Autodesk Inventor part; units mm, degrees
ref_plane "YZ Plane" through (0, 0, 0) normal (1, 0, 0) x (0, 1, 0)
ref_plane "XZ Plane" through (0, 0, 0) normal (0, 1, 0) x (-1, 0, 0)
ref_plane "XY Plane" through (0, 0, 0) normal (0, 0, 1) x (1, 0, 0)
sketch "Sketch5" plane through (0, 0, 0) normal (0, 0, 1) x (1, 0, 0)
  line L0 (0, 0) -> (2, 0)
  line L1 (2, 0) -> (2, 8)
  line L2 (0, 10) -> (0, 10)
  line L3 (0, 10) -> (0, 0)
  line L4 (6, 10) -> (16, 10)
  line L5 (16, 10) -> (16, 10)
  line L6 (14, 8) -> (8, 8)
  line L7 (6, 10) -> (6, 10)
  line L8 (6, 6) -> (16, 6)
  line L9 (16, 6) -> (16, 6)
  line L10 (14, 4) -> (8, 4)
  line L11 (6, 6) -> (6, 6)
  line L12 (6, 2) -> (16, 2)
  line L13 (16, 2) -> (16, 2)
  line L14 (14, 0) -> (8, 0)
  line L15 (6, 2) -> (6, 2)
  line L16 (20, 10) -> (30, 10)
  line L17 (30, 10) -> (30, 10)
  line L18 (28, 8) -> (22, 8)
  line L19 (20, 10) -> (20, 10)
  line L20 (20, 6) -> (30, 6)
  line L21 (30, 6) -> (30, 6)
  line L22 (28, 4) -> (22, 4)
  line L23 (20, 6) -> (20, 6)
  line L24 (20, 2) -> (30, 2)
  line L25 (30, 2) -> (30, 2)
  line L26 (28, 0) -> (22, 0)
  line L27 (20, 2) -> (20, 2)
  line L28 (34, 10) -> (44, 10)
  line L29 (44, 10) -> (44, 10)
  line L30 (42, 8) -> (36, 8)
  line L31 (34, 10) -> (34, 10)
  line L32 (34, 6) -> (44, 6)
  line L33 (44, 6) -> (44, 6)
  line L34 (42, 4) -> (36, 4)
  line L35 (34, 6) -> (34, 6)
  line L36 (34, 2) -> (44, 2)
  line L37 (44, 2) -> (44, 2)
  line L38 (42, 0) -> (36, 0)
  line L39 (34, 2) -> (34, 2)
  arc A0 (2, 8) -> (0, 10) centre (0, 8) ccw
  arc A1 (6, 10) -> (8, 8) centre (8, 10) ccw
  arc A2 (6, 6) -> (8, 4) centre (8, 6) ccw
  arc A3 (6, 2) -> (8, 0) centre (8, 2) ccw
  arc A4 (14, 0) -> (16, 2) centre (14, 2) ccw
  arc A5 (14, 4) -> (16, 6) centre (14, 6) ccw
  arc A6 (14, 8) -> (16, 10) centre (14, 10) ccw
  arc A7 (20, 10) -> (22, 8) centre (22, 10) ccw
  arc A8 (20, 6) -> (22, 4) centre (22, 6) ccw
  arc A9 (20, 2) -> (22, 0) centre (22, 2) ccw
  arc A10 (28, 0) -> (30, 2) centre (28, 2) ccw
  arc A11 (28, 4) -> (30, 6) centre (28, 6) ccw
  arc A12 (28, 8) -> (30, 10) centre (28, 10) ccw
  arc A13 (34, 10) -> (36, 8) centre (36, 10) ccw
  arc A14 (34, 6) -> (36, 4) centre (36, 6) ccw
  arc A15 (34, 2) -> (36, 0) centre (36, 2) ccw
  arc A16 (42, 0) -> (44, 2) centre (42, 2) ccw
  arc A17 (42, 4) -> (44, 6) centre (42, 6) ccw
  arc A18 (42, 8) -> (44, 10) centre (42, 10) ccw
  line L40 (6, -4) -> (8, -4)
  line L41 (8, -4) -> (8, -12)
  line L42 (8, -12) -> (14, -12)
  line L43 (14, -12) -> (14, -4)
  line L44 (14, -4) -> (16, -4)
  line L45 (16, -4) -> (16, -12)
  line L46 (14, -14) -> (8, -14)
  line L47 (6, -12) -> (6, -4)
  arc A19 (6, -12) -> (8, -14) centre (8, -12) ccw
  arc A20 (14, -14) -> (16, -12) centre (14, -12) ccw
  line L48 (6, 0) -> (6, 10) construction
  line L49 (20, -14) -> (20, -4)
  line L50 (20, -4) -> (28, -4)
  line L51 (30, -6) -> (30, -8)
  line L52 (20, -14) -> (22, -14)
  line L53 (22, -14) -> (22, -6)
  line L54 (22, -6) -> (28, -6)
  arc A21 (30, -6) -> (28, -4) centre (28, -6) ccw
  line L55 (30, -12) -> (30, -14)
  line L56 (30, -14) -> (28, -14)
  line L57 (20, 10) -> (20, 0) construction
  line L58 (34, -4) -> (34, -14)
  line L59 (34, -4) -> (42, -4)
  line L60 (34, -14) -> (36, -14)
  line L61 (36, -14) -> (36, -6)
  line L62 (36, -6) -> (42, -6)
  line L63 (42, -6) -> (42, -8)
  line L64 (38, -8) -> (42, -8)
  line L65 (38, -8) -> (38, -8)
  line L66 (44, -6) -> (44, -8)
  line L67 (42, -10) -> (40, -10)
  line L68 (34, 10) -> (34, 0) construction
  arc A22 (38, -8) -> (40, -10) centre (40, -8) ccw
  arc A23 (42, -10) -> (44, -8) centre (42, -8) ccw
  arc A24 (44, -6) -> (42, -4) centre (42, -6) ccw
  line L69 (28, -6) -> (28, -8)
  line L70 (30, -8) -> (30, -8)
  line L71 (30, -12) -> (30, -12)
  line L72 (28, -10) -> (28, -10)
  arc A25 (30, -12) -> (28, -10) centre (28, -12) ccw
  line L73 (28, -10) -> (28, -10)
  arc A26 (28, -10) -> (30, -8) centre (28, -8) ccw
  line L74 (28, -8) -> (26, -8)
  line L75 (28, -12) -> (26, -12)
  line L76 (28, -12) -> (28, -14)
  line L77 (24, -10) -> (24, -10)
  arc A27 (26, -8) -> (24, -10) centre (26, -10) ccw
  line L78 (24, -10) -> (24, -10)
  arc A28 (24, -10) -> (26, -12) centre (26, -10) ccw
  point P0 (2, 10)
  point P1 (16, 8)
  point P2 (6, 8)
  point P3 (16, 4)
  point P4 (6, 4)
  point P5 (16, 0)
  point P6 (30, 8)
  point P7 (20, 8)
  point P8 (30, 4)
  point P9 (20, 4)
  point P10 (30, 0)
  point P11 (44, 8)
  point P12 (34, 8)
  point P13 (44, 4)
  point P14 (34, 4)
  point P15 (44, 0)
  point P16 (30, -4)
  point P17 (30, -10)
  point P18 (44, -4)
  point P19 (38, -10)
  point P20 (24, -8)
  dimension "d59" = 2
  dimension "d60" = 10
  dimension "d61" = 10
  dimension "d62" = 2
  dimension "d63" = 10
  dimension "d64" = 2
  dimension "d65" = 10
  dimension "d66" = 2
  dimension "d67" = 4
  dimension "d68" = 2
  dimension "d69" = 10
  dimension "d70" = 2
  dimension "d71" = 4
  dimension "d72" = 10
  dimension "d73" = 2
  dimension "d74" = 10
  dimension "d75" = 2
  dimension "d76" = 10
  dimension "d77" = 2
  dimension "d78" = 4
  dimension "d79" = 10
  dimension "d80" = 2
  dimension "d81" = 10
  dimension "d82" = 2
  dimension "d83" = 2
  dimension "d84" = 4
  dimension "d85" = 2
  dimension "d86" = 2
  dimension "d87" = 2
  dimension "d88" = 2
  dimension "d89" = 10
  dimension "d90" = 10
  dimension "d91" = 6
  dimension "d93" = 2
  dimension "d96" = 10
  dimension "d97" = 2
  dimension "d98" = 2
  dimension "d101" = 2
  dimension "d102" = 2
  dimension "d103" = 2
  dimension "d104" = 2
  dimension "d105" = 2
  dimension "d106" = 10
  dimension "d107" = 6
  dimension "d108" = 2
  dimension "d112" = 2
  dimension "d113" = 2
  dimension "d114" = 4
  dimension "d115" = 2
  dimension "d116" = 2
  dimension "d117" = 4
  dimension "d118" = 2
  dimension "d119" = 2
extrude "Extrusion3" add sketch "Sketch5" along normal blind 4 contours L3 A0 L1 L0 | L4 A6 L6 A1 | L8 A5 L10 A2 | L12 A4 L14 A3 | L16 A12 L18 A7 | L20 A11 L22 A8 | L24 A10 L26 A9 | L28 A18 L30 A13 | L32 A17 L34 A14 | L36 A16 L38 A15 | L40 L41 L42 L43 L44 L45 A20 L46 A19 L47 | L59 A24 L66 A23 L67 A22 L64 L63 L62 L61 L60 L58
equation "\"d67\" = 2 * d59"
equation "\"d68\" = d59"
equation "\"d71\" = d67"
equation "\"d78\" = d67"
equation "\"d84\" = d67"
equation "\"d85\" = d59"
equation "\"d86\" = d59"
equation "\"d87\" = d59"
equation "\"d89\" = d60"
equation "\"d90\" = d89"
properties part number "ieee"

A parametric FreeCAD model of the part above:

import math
import FreeCAD as App
import Part
import Sketcher
Q = App.Units.Quantity

doc = App.newDocument("Part")
params = doc.addObject("Spreadsheet::Sheet", "Params")
for row, (alias, value) in enumerate([
    ("sketch1_radius", "2 mm"),
    ("sketch1_width", "10 mm"),
    ("pad1_length", "4 mm"),
], start=1):
    params.set(f"A{row}", alias)
    params.set(f"B{row}", "=" + value)
    params.setAlias(f"B{row}", alias)

body = doc.addObject("PartDesign::Body", "Body")
body.AllowCompound = True

sketch1 = body.newObject("Sketcher::SketchObject", "Sketch")
sketch1.AttachmentSupport = (doc.getObject("XY_Plane"), [""])
sketch1.MapMode = "FlatFace"
sketch1.addGeometry(Part.LineSegment(App.Vector(0, 10, 0), App.Vector(0, 0, 0)), False)
sketch1.addGeometry(Part.LineSegment(App.Vector(0, 0, 0), App.Vector(2, 0, 0)), False)
sketch1.addGeometry(Part.LineSegment(App.Vector(2, 0, 0), App.Vector(2, 8, 0)), False)
sketch1.addGeometry(Part.ArcOfCircle(Part.Circle(App.Vector(0, 8, 0), App.Vector(0, 0, 1), 2), math.radians(0), math.radians(90)), False)
sketch1.addGeometry(Part.LineSegment(App.Vector(16, 10, 0), App.Vector(6, 10, 0)), False)
sketch1.addGeometry(Part.ArcOfCircle(Part.Circle(App.Vector(8, 10, 0), App.Vector(0, 0, 1), 2), math.radians(180), math.radians(270)), False)
sketch1.addGeometry(Part.LineSegment(App.Vector(8, 8, 0), App.Vector(14, 8, 0)), False)
sketch1.addGeometry(Part.ArcOfCircle(Part.Circle(App.Vector(14, 10, 0), App.Vector(0, 0, 1), 2), math.radians(-90), math.radians(0)), False)
sketch1.addGeometry(Part.LineSegment(App.Vector(16, 6, 0), App.Vector(6, 6, 0)), False)
sketch1.addGeometry(Part.ArcOfCircle(Part.Circle(App.Vector(8, 6, 0), App.Vector(0, 0, 1), 2), math.radians(180), math.radians(270)), False)
sketch1.addGeometry(Part.LineSegment(App.Vector(8, 4, 0), App.Vector(14, 4, 0)), False)
sketch1.addGeometry(Part.ArcOfCircle(Part.Circle(App.Vector(14, 6, 0), App.Vector(0, 0, 1), 2), math.radians(-90), math.radians(0)), False)
sketch1.addGeometry(Part.LineSegment(App.Vector(16, 2, 0), App.Vector(6, 2, 0)), False)
sketch1.addGeometry(Part.ArcOfCircle(Part.Circle(App.Vector(8, 2, 0), App.Vector(0, 0, 1), 2), math.radians(180), math.radians(270)), False)
sketch1.addGeometry(Part.LineSegment(App.Vector(8, 0, 0), App.Vector(14, 0, 0)), False)
sketch1.addGeometry(Part.ArcOfCircle(Part.Circle(App.Vector(14, 2, 0), App.Vector(0, 0, 1), 2), math.radians(-90), math.radians(0)), False)
sketch1.addGeometry(Part.LineSegment(App.Vector(30, 10, 0), App.Vector(20, 10, 0)), False)
sketch1.addGeometry(Part.ArcOfCircle(Part.Circle(App.Vector(22, 10, 0), App.Vector(0, 0, 1), 2), math.radians(180), math.radians(270)), False)
sketch1.addGeometry(Part.LineSegment(App.Vector(22, 8, 0), App.Vector(28, 8, 0)), False)
sketch1.addGeometry(Part.ArcOfCircle(Part.Circle(App.Vector(28, 10, 0), App.Vector(0, 0, 1), 2), math.radians(-90), math.radians(0)), False)
sketch1.addGeometry(Part.LineSegment(App.Vector(30, 6, 0), App.Vector(20, 6, 0)), False)
sketch1.addGeometry(Part.ArcOfCircle(Part.Circle(App.Vector(22, 6, 0), App.Vector(0, 0, 1), 2), math.radians(180), math.radians(270)), False)
sketch1.addGeometry(Part.LineSegment(App.Vector(22, 4, 0), App.Vector(28, 4, 0)), False)
sketch1.addGeometry(Part.ArcOfCircle(Part.Circle(App.Vector(28, 6, 0), App.Vector(0, 0, 1), 2), math.radians(-90), math.radians(0)), False)
sketch1.addGeometry(Part.LineSegment(App.Vector(30, 2, 0), App.Vector(20, 2, 0)), False)
sketch1.addGeometry(Part.ArcOfCircle(Part.Circle(App.Vector(22, 2, 0), App.Vector(0, 0, 1), 2), math.radians(180), math.radians(270)), False)
sketch1.addGeometry(Part.LineSegment(App.Vector(22, 0, 0), App.Vector(28, 0, 0)), False)
sketch1.addGeometry(Part.ArcOfCircle(Part.Circle(App.Vector(28, 2, 0), App.Vector(0, 0, 1), 2), math.radians(-90), math.radians(0)), False)
sketch1.addGeometry(Part.LineSegment(App.Vector(44, 10, 0), App.Vector(34, 10, 0)), False)
sketch1.addGeometry(Part.ArcOfCircle(Part.Circle(App.Vector(36, 10, 0), App.Vector(0, 0, 1), 2), math.radians(180), math.radians(270)), False)
sketch1.addGeometry(Part.LineSegment(App.Vector(36, 8, 0), App.Vector(42, 8, 0)), False)
sketch1.addGeometry(Part.ArcOfCircle(Part.Circle(App.Vector(42, 10, 0), App.Vector(0, 0, 1), 2), math.radians(-90), math.radians(0)), False)
sketch1.addGeometry(Part.LineSegment(App.Vector(44, 6, 0), App.Vector(34, 6, 0)), False)
sketch1.addGeometry(Part.ArcOfCircle(Part.Circle(App.Vector(36, 6, 0), App.Vector(0, 0, 1), 2), math.radians(180), math.radians(270)), False)
sketch1.addGeometry(Part.LineSegment(App.Vector(36, 4, 0), App.Vector(42, 4, 0)), False)
sketch1.addGeometry(Part.ArcOfCircle(Part.Circle(App.Vector(42, 6, 0), App.Vector(0, 0, 1), 2), math.radians(-90), math.radians(0)), False)
sketch1.addGeometry(Part.LineSegment(App.Vector(44, 2, 0), App.Vector(34, 2, 0)), False)
sketch1.addGeometry(Part.ArcOfCircle(Part.Circle(App.Vector(36, 2, 0), App.Vector(0, 0, 1), 2), math.radians(180), math.radians(270)), False)
sketch1.addGeometry(Part.LineSegment(App.Vector(36, 0, 0), App.Vector(42, 0, 0)), False)
sketch1.addGeometry(Part.ArcOfCircle(Part.Circle(App.Vector(42, 2, 0), App.Vector(0, 0, 1), 2), math.radians(-90), math.radians(0)), False)
sketch1.addGeometry(Part.LineSegment(App.Vector(8, -4, 0), App.Vector(6, -4, 0)), False)
sketch1.addGeometry(Part.LineSegment(App.Vector(6, -4, 0), App.Vector(6, -12, 0)), False)
sketch1.addGeometry(Part.ArcOfCircle(Part.Circle(App.Vector(8, -12, 0), App.Vector(0, 0, 1), 2), math.radians(180), math.radians(270)), False)
sketch1.addGeometry(Part.LineSegment(App.Vector(8, -14, 0), App.Vector(14, -14, 0)), False)
sketch1.addGeometry(Part.ArcOfCircle(Part.Circle(App.Vector(14, -12, 0), App.Vector(0, 0, 1), 2), math.radians(-90), math.radians(0)), False)
sketch1.addGeometry(Part.LineSegment(App.Vector(16, -12, 0), App.Vector(16, -4, 0)), False)
sketch1.addGeometry(Part.LineSegment(App.Vector(16, -4, 0), App.Vector(14, -4, 0)), False)
sketch1.addGeometry(Part.LineSegment(App.Vector(14, -4, 0), App.Vector(14, -12, 0)), False)
sketch1.addGeometry(Part.LineSegment(App.Vector(14, -12, 0), App.Vector(8, -12, 0)), False)
sketch1.addGeometry(Part.LineSegment(App.Vector(8, -12, 0), App.Vector(8, -4, 0)), False)
sketch1.addGeometry(Part.LineSegment(App.Vector(42, -4, 0), App.Vector(34, -4, 0)), False)
sketch1.addGeometry(Part.LineSegment(App.Vector(34, -4, 0), App.Vector(34, -14, 0)), False)
sketch1.addGeometry(Part.LineSegment(App.Vector(34, -14, 0), App.Vector(36, -14, 0)), False)
sketch1.addGeometry(Part.LineSegment(App.Vector(36, -14, 0), App.Vector(36, -6, 0)), False)
sketch1.addGeometry(Part.LineSegment(App.Vector(36, -6, 0), App.Vector(42, -6, 0)), False)
sketch1.addGeometry(Part.LineSegment(App.Vector(42, -6, 0), App.Vector(42, -8, 0)), False)
sketch1.addGeometry(Part.LineSegment(App.Vector(42, -8, 0), App.Vector(38, -8, 0)), False)
sketch1.addGeometry(Part.ArcOfCircle(Part.Circle(App.Vector(40, -8, 0), App.Vector(0, 0, 1), 2), math.radians(180), math.radians(270)), False)
sketch1.addGeometry(Part.LineSegment(App.Vector(40, -10, 0), App.Vector(42, -10, 0)), False)
sketch1.addGeometry(Part.ArcOfCircle(Part.Circle(App.Vector(42, -8, 0), App.Vector(0, 0, 1), 2), math.radians(-90), math.radians(0)), False)
sketch1.addGeometry(Part.LineSegment(App.Vector(44, -8, 0), App.Vector(44, -6, 0)), False)
sketch1.addGeometry(Part.ArcOfCircle(Part.Circle(App.Vector(42, -6, 0), App.Vector(0, 0, 1), 2), math.radians(0), math.radians(90)), False)
sketch1.addConstraint(Sketcher.Constraint("Coincident", 0, 2, 1, 1))
sketch1.addConstraint(Sketcher.Constraint("Coincident", 1, 2, 2, 1))
sketch1.addConstraint(Sketcher.Constraint("Tangent", 2, 2, 3, 1))
sketch1.addConstraint(Sketcher.Constraint("Coincident", 3, 2, 0, 1))
sketch1.addConstraint(Sketcher.Constraint("Coincident", 4, 2, 5, 1))
sketch1.addConstraint(Sketcher.Constraint("Tangent", 5, 2, 6, 1))
sketch1.addConstraint(Sketcher.Constraint("Tangent", 6, 2, 7, 1))
sketch1.addConstraint(Sketcher.Constraint("Coincident", 7, 2, 4, 1))
sketch1.addConstraint(Sketcher.Constraint("Coincident", 8, 2, 9, 1))
sketch1.addConstraint(Sketcher.Constraint("Tangent", 9, 2, 10, 1))
sketch1.addConstraint(Sketcher.Constraint("Tangent", 10, 2, 11, 1))
sketch1.addConstraint(Sketcher.Constraint("Coincident", 11, 2, 8, 1))
sketch1.addConstraint(Sketcher.Constraint("Coincident", 12, 2, 13, 1))
sketch1.addConstraint(Sketcher.Constraint("Tangent", 13, 2, 14, 1))
sketch1.addConstraint(Sketcher.Constraint("Tangent", 14, 2, 15, 1))
sketch1.addConstraint(Sketcher.Constraint("Coincident", 15, 2, 12, 1))
sketch1.addConstraint(Sketcher.Constraint("Coincident", 16, 2, 17, 1))
sketch1.addConstraint(Sketcher.Constraint("Tangent", 17, 2, 18, 1))
sketch1.addConstraint(Sketcher.Constraint("Tangent", 18, 2, 19, 1))
sketch1.addConstraint(Sketcher.Constraint("Coincident", 19, 2, 16, 1))
sketch1.addConstraint(Sketcher.Constraint("Coincident", 20, 2, 21, 1))
sketch1.addConstraint(Sketcher.Constraint("Tangent", 21, 2, 22, 1))
sketch1.addConstraint(Sketcher.Constraint("Tangent", 22, 2, 23, 1))
sketch1.addConstraint(Sketcher.Constraint("Coincident", 23, 2, 20, 1))
sketch1.addConstraint(Sketcher.Constraint("Coincident", 24, 2, 25, 1))
sketch1.addConstraint(Sketcher.Constraint("Tangent", 25, 2, 26, 1))
sketch1.addConstraint(Sketcher.Constraint("Tangent", 26, 2, 27, 1))
sketch1.addConstraint(Sketcher.Constraint("Coincident", 27, 2, 24, 1))
sketch1.addConstraint(Sketcher.Constraint("Coincident", 28, 2, 29, 1))
sketch1.addConstraint(Sketcher.Constraint("Tangent", 29, 2, 30, 1))
sketch1.addConstraint(Sketcher.Constraint("Tangent", 30, 2, 31, 1))
sketch1.addConstraint(Sketcher.Constraint("Coincident", 31, 2, 28, 1))
sketch1.addConstraint(Sketcher.Constraint("Coincident", 32, 2, 33, 1))
sketch1.addConstraint(Sketcher.Constraint("Tangent", 33, 2, 34, 1))
sketch1.addConstraint(Sketcher.Constraint("Tangent", 34, 2, 35, 1))
sketch1.addConstraint(Sketcher.Constraint("Coincident", 35, 2, 32, 1))
sketch1.addConstraint(Sketcher.Constraint("Coincident", 36, 2, 37, 1))
sketch1.addConstraint(Sketcher.Constraint("Tangent", 37, 2, 38, 1))
sketch1.addConstraint(Sketcher.Constraint("Tangent", 38, 2, 39, 1))
sketch1.addConstraint(Sketcher.Constraint("Coincident", 39, 2, 36, 1))
sketch1.addConstraint(Sketcher.Constraint("Coincident", 40, 2, 41, 1))
sketch1.addConstraint(Sketcher.Constraint("Tangent", 41, 2, 42, 1))
sketch1.addConstraint(Sketcher.Constraint("Tangent", 42, 2, 43, 1))
sketch1.addConstraint(Sketcher.Constraint("Tangent", 43, 2, 44, 1))
sketch1.addConstraint(Sketcher.Constraint("Tangent", 44, 2, 45, 1))
sketch1.addConstraint(Sketcher.Constraint("Coincident", 45, 2, 46, 1))
sketch1.addConstraint(Sketcher.Constraint("Coincident", 46, 2, 47, 1))
sketch1.addConstraint(Sketcher.Constraint("Coincident", 47, 2, 48, 1))
sketch1.addConstraint(Sketcher.Constraint("Coincident", 48, 2, 49, 1))
sketch1.addConstraint(Sketcher.Constraint("Coincident", 49, 2, 40, 1))
sketch1.addConstraint(Sketcher.Constraint("Coincident", 50, 2, 51, 1))
sketch1.addConstraint(Sketcher.Constraint("Coincident", 51, 2, 52, 1))
sketch1.addConstraint(Sketcher.Constraint("Coincident", 52, 2, 53, 1))
sketch1.addConstraint(Sketcher.Constraint("Coincident", 53, 2, 54, 1))
sketch1.addConstraint(Sketcher.Constraint("Coincident", 54, 2, 55, 1))
sketch1.addConstraint(Sketcher.Constraint("Coincident", 55, 2, 56, 1))
sketch1.addConstraint(Sketcher.Constraint("Coincident", 56, 2, 57, 1))
sketch1.addConstraint(Sketcher.Constraint("Tangent", 57, 2, 58, 1))
sketch1.addConstraint(Sketcher.Constraint("Tangent", 58, 2, 59, 1))
sketch1.addConstraint(Sketcher.Constraint("Tangent", 59, 2, 60, 1))
sketch1.addConstraint(Sketcher.Constraint("Tangent", 60, 2, 61, 1))
sketch1.addConstraint(Sketcher.Constraint("Tangent", 61, 2, 50, 1))
sketch1.addConstraint(Sketcher.Constraint("Vertical", 0))
sketch1.addConstraint(Sketcher.Constraint("Horizontal", 1))
sketch1.addConstraint(Sketcher.Constraint("Vertical", 2))
sketch1.addConstraint(Sketcher.Constraint("Horizontal", 4))
sketch1.addConstraint(Sketcher.Constraint("Horizontal", 6))
sketch1.addConstraint(Sketcher.Constraint("Horizontal", 8))
sketch1.addConstraint(Sketcher.Constraint("Horizontal", 10))
sketch1.addConstraint(Sketcher.Constraint("Horizontal", 12))
sketch1.addConstraint(Sketcher.Constraint("Horizontal", 14))
sketch1.addConstraint(Sketcher.Constraint("Horizontal", 16))
sketch1.addConstraint(Sketcher.Constraint("Horizontal", 18))
sketch1.addConstraint(Sketcher.Constraint("Horizontal", 20))
sketch1.addConstraint(Sketcher.Constraint("Horizontal", 22))
sketch1.addConstraint(Sketcher.Constraint("Horizontal", 24))
sketch1.addConstraint(Sketcher.Constraint("Horizontal", 26))
sketch1.addConstraint(Sketcher.Constraint("Horizontal", 28))
sketch1.addConstraint(Sketcher.Constraint("Horizontal", 30))
sketch1.addConstraint(Sketcher.Constraint("Horizontal", 32))
sketch1.addConstraint(Sketcher.Constraint("Horizontal", 34))
sketch1.addConstraint(Sketcher.Constraint("Horizontal", 36))
sketch1.addConstraint(Sketcher.Constraint("Horizontal", 38))
sketch1.addConstraint(Sketcher.Constraint("Horizontal", 40))
sketch1.addConstraint(Sketcher.Constraint("Vertical", 41))
sketch1.addConstraint(Sketcher.Constraint("Horizontal", 43))
sketch1.addConstraint(Sketcher.Constraint("Vertical", 45))
sketch1.addConstraint(Sketcher.Constraint("Horizontal", 46))
sketch1.addConstraint(Sketcher.Constraint("Vertical", 47))
sketch1.addConstraint(Sketcher.Constraint("Horizontal", 48))
sketch1.addConstraint(Sketcher.Constraint("Vertical", 49))
sketch1.addConstraint(Sketcher.Constraint("Horizontal", 50))
sketch1.addConstraint(Sketcher.Constraint("Vertical", 51))
sketch1.addConstraint(Sketcher.Constraint("Horizontal", 52))
sketch1.addConstraint(Sketcher.Constraint("Vertical", 53))
sketch1.addConstraint(Sketcher.Constraint("Horizontal", 54))
sketch1.addConstraint(Sketcher.Constraint("Vertical", 55))
sketch1.addConstraint(Sketcher.Constraint("Horizontal", 56))
sketch1.addConstraint(Sketcher.Constraint("Horizontal", 58))
sketch1.addConstraint(Sketcher.Constraint("Vertical", 60))
sketch1.addConstraint(Sketcher.Constraint("Coincident", 0, 2, -1, 1))
sketch1.addConstraint(Sketcher.Constraint("Coincident", 47, 2, 44, 3))
sketch1.addConstraint(Sketcher.Constraint("Coincident", 48, 2, 42, 3))
sketch1.addConstraint(Sketcher.Constraint("Coincident", 54, 2, 61, 3))
sketch1.addConstraint(Sketcher.Constraint("Coincident", 55, 2, 59, 3))
sketch1.addConstraint(Sketcher.Constraint("Equal", 3, 5))
sketch1.addConstraint(Sketcher.Constraint("Equal", 5, 7))
sketch1.addConstraint(Sketcher.Constraint("Equal", 7, 9))
sketch1.addConstraint(Sketcher.Constraint("Equal", 9, 11))
sketch1.addConstraint(Sketcher.Constraint("Equal", 11, 13))
sketch1.addConstraint(Sketcher.Constraint("Equal", 13, 15))
sketch1.addConstraint(Sketcher.Constraint("Equal", 15, 17))
sketch1.addConstraint(Sketcher.Constraint("Equal", 17, 19))
sketch1.addConstraint(Sketcher.Constraint("Equal", 19, 21))
sketch1.addConstraint(Sketcher.Constraint("Equal", 21, 23))
sketch1.addConstraint(Sketcher.Constraint("Equal", 23, 25))
sketch1.addConstraint(Sketcher.Constraint("Equal", 25, 27))
sketch1.addConstraint(Sketcher.Constraint("Equal", 27, 29))
sketch1.addConstraint(Sketcher.Constraint("Equal", 29, 31))
sketch1.addConstraint(Sketcher.Constraint("Equal", 31, 33))
sketch1.addConstraint(Sketcher.Constraint("Equal", 33, 35))
sketch1.addConstraint(Sketcher.Constraint("Equal", 35, 37))
sketch1.addConstraint(Sketcher.Constraint("Equal", 37, 39))
sketch1.addConstraint(Sketcher.Constraint("Equal", 39, 42))
sketch1.addConstraint(Sketcher.Constraint("Equal", 44, 57))
sketch1.addConstraint(Sketcher.Constraint("Equal", 57, 59))
sketch1.addConstraint(Sketcher.Constraint("Symmetric", 35, 3, 61, 3, -1))
sketch1.addConstraint(Sketcher.Constraint("Symmetric", 10, 2, 46, 2, -1))
sketch1.addConstraint(Sketcher.Constraint("Symmetric", 9, 2, 49, 2, -1))
sketch1.addConstraint(Sketcher.Constraint("Symmetric", 30, 2, 55, 2, -1))
sketch1.addConstraint(Sketcher.Constraint("PointOnObject", 3, 3, -2))
sketch1.addConstraint(Sketcher.Constraint("PointOnObject", 13, 2, -1))
sketch1.addConstraint(Sketcher.Constraint("PointOnObject", 25, 2, -1))
sketch1.addConstraint(Sketcher.Constraint("PointOnObject", 37, 2, -1))
sketch1.addConstraint(Sketcher.Constraint("Horizontal", 7, 3, 17, 3))
sketch1.addConstraint(Sketcher.Constraint("Horizontal", 11, 3, 21, 3))
sketch1.addConstraint(Sketcher.Constraint("Horizontal", 19, 3, 29, 3))
sketch1.addConstraint(Sketcher.Constraint("Horizontal", 23, 3, 33, 3))
sketch1.addConstraint(Sketcher.Constraint("Horizontal", 31, 3, 3, 2))
sketch1.addConstraint(Sketcher.Constraint("Horizontal", 3, 2, 4, 2))
sketch1.addConstraint(Sketcher.Constraint("Horizontal", 35, 3, 8, 2))
sketch1.addConstraint(Sketcher.Constraint("Horizontal", 39, 3, 12, 2))
sketch1.addConstraint(Sketcher.Constraint("Horizontal", 7, 2, 16, 2))
sketch1.addConstraint(Sketcher.Constraint("Horizontal", 11, 2, 20, 2))
sketch1.addConstraint(Sketcher.Constraint("Horizontal", 15, 2, 24, 2))
sketch1.addConstraint(Sketcher.Constraint("Horizontal", 19, 2, 28, 2))
sketch1.addConstraint(Sketcher.Constraint("Horizontal", 23, 2, 32, 2))
sketch1.addConstraint(Sketcher.Constraint("Horizontal", 27, 2, 36, 2))
sketch1.addConstraint(Sketcher.Constraint("Horizontal", 43, 2, 51, 2))
sketch1.addConstraint(Sketcher.Constraint("Vertical", 5, 3, 9, 3))
sketch1.addConstraint(Sketcher.Constraint("Vertical", 7, 3, 11, 3))
sketch1.addConstraint(Sketcher.Constraint("Vertical", 9, 3, 13, 3))
sketch1.addConstraint(Sketcher.Constraint("Vertical", 11, 3, 15, 3))
sketch1.addConstraint(Sketcher.Constraint("Vertical", 17, 3, 21, 3))
sketch1.addConstraint(Sketcher.Constraint("Vertical", 19, 3, 23, 3))
sketch1.addConstraint(Sketcher.Constraint("Vertical", 21, 3, 25, 3))
sketch1.addConstraint(Sketcher.Constraint("Vertical", 23, 3, 27, 3))
sketch1.addConstraint(Sketcher.Constraint("Vertical", 29, 3, 33, 3))
sketch1.addConstraint(Sketcher.Constraint("Vertical", 33, 3, 37, 3))
sketch1.addConstraint(Sketcher.Constraint("Vertical", 35, 3, 39, 3))
sketch1.addConstraint(Sketcher.Constraint("Vertical", 36, 2, 50, 2))
sketch1.addConstraint(Sketcher.Constraint("Vertical", 37, 2, 52, 2))
sketch1.addConstraint(Sketcher.Constraint("Equal", 12, 16))
sketch1.addConstraint(Sketcher.Constraint("Equal", 24, 28))
sketch1.addConstraint(Sketcher.Constraint("Equal", 52, 58))
sketch1.addConstraint(Sketcher.Constraint("Equal", 36, 0))
sketch1.addConstraint(Sketcher.Constraint("Equal", 2, 41))
sketch1.addConstraint(Sketcher.Constraint("Equal", 58, 55))
sketch1.addConstraint(Sketcher.Constraint("Radius", 3, Q("2 mm")))
sketch1.addConstraint(Sketcher.Constraint("DistanceX", 4, 2, 4, 1, Q("10 mm")))
sketch1.addConstraint(Sketcher.Constraint("DistanceX", -1, 1, 4, 2, Q("6 mm")))
sketch1.addConstraint(Sketcher.Constraint("DistanceX", -1, 1, 17, 3, Q("22 mm")))
sketch1.addConstraint(Sketcher.Constraint("DistanceX", -1, 1, 29, 3, Q("36 mm")))
sketch1.setExpression("Constraints[168]", "Params.sketch1_radius")
sketch1.setExpression("Constraints[169]", "Params.sketch1_width")
pad1 = body.newObject("PartDesign::Pad", "Pad")
pad1.Profile = sketch1
pad1.setExpression("Length", "Params.pad1_length")

doc.recompute()
